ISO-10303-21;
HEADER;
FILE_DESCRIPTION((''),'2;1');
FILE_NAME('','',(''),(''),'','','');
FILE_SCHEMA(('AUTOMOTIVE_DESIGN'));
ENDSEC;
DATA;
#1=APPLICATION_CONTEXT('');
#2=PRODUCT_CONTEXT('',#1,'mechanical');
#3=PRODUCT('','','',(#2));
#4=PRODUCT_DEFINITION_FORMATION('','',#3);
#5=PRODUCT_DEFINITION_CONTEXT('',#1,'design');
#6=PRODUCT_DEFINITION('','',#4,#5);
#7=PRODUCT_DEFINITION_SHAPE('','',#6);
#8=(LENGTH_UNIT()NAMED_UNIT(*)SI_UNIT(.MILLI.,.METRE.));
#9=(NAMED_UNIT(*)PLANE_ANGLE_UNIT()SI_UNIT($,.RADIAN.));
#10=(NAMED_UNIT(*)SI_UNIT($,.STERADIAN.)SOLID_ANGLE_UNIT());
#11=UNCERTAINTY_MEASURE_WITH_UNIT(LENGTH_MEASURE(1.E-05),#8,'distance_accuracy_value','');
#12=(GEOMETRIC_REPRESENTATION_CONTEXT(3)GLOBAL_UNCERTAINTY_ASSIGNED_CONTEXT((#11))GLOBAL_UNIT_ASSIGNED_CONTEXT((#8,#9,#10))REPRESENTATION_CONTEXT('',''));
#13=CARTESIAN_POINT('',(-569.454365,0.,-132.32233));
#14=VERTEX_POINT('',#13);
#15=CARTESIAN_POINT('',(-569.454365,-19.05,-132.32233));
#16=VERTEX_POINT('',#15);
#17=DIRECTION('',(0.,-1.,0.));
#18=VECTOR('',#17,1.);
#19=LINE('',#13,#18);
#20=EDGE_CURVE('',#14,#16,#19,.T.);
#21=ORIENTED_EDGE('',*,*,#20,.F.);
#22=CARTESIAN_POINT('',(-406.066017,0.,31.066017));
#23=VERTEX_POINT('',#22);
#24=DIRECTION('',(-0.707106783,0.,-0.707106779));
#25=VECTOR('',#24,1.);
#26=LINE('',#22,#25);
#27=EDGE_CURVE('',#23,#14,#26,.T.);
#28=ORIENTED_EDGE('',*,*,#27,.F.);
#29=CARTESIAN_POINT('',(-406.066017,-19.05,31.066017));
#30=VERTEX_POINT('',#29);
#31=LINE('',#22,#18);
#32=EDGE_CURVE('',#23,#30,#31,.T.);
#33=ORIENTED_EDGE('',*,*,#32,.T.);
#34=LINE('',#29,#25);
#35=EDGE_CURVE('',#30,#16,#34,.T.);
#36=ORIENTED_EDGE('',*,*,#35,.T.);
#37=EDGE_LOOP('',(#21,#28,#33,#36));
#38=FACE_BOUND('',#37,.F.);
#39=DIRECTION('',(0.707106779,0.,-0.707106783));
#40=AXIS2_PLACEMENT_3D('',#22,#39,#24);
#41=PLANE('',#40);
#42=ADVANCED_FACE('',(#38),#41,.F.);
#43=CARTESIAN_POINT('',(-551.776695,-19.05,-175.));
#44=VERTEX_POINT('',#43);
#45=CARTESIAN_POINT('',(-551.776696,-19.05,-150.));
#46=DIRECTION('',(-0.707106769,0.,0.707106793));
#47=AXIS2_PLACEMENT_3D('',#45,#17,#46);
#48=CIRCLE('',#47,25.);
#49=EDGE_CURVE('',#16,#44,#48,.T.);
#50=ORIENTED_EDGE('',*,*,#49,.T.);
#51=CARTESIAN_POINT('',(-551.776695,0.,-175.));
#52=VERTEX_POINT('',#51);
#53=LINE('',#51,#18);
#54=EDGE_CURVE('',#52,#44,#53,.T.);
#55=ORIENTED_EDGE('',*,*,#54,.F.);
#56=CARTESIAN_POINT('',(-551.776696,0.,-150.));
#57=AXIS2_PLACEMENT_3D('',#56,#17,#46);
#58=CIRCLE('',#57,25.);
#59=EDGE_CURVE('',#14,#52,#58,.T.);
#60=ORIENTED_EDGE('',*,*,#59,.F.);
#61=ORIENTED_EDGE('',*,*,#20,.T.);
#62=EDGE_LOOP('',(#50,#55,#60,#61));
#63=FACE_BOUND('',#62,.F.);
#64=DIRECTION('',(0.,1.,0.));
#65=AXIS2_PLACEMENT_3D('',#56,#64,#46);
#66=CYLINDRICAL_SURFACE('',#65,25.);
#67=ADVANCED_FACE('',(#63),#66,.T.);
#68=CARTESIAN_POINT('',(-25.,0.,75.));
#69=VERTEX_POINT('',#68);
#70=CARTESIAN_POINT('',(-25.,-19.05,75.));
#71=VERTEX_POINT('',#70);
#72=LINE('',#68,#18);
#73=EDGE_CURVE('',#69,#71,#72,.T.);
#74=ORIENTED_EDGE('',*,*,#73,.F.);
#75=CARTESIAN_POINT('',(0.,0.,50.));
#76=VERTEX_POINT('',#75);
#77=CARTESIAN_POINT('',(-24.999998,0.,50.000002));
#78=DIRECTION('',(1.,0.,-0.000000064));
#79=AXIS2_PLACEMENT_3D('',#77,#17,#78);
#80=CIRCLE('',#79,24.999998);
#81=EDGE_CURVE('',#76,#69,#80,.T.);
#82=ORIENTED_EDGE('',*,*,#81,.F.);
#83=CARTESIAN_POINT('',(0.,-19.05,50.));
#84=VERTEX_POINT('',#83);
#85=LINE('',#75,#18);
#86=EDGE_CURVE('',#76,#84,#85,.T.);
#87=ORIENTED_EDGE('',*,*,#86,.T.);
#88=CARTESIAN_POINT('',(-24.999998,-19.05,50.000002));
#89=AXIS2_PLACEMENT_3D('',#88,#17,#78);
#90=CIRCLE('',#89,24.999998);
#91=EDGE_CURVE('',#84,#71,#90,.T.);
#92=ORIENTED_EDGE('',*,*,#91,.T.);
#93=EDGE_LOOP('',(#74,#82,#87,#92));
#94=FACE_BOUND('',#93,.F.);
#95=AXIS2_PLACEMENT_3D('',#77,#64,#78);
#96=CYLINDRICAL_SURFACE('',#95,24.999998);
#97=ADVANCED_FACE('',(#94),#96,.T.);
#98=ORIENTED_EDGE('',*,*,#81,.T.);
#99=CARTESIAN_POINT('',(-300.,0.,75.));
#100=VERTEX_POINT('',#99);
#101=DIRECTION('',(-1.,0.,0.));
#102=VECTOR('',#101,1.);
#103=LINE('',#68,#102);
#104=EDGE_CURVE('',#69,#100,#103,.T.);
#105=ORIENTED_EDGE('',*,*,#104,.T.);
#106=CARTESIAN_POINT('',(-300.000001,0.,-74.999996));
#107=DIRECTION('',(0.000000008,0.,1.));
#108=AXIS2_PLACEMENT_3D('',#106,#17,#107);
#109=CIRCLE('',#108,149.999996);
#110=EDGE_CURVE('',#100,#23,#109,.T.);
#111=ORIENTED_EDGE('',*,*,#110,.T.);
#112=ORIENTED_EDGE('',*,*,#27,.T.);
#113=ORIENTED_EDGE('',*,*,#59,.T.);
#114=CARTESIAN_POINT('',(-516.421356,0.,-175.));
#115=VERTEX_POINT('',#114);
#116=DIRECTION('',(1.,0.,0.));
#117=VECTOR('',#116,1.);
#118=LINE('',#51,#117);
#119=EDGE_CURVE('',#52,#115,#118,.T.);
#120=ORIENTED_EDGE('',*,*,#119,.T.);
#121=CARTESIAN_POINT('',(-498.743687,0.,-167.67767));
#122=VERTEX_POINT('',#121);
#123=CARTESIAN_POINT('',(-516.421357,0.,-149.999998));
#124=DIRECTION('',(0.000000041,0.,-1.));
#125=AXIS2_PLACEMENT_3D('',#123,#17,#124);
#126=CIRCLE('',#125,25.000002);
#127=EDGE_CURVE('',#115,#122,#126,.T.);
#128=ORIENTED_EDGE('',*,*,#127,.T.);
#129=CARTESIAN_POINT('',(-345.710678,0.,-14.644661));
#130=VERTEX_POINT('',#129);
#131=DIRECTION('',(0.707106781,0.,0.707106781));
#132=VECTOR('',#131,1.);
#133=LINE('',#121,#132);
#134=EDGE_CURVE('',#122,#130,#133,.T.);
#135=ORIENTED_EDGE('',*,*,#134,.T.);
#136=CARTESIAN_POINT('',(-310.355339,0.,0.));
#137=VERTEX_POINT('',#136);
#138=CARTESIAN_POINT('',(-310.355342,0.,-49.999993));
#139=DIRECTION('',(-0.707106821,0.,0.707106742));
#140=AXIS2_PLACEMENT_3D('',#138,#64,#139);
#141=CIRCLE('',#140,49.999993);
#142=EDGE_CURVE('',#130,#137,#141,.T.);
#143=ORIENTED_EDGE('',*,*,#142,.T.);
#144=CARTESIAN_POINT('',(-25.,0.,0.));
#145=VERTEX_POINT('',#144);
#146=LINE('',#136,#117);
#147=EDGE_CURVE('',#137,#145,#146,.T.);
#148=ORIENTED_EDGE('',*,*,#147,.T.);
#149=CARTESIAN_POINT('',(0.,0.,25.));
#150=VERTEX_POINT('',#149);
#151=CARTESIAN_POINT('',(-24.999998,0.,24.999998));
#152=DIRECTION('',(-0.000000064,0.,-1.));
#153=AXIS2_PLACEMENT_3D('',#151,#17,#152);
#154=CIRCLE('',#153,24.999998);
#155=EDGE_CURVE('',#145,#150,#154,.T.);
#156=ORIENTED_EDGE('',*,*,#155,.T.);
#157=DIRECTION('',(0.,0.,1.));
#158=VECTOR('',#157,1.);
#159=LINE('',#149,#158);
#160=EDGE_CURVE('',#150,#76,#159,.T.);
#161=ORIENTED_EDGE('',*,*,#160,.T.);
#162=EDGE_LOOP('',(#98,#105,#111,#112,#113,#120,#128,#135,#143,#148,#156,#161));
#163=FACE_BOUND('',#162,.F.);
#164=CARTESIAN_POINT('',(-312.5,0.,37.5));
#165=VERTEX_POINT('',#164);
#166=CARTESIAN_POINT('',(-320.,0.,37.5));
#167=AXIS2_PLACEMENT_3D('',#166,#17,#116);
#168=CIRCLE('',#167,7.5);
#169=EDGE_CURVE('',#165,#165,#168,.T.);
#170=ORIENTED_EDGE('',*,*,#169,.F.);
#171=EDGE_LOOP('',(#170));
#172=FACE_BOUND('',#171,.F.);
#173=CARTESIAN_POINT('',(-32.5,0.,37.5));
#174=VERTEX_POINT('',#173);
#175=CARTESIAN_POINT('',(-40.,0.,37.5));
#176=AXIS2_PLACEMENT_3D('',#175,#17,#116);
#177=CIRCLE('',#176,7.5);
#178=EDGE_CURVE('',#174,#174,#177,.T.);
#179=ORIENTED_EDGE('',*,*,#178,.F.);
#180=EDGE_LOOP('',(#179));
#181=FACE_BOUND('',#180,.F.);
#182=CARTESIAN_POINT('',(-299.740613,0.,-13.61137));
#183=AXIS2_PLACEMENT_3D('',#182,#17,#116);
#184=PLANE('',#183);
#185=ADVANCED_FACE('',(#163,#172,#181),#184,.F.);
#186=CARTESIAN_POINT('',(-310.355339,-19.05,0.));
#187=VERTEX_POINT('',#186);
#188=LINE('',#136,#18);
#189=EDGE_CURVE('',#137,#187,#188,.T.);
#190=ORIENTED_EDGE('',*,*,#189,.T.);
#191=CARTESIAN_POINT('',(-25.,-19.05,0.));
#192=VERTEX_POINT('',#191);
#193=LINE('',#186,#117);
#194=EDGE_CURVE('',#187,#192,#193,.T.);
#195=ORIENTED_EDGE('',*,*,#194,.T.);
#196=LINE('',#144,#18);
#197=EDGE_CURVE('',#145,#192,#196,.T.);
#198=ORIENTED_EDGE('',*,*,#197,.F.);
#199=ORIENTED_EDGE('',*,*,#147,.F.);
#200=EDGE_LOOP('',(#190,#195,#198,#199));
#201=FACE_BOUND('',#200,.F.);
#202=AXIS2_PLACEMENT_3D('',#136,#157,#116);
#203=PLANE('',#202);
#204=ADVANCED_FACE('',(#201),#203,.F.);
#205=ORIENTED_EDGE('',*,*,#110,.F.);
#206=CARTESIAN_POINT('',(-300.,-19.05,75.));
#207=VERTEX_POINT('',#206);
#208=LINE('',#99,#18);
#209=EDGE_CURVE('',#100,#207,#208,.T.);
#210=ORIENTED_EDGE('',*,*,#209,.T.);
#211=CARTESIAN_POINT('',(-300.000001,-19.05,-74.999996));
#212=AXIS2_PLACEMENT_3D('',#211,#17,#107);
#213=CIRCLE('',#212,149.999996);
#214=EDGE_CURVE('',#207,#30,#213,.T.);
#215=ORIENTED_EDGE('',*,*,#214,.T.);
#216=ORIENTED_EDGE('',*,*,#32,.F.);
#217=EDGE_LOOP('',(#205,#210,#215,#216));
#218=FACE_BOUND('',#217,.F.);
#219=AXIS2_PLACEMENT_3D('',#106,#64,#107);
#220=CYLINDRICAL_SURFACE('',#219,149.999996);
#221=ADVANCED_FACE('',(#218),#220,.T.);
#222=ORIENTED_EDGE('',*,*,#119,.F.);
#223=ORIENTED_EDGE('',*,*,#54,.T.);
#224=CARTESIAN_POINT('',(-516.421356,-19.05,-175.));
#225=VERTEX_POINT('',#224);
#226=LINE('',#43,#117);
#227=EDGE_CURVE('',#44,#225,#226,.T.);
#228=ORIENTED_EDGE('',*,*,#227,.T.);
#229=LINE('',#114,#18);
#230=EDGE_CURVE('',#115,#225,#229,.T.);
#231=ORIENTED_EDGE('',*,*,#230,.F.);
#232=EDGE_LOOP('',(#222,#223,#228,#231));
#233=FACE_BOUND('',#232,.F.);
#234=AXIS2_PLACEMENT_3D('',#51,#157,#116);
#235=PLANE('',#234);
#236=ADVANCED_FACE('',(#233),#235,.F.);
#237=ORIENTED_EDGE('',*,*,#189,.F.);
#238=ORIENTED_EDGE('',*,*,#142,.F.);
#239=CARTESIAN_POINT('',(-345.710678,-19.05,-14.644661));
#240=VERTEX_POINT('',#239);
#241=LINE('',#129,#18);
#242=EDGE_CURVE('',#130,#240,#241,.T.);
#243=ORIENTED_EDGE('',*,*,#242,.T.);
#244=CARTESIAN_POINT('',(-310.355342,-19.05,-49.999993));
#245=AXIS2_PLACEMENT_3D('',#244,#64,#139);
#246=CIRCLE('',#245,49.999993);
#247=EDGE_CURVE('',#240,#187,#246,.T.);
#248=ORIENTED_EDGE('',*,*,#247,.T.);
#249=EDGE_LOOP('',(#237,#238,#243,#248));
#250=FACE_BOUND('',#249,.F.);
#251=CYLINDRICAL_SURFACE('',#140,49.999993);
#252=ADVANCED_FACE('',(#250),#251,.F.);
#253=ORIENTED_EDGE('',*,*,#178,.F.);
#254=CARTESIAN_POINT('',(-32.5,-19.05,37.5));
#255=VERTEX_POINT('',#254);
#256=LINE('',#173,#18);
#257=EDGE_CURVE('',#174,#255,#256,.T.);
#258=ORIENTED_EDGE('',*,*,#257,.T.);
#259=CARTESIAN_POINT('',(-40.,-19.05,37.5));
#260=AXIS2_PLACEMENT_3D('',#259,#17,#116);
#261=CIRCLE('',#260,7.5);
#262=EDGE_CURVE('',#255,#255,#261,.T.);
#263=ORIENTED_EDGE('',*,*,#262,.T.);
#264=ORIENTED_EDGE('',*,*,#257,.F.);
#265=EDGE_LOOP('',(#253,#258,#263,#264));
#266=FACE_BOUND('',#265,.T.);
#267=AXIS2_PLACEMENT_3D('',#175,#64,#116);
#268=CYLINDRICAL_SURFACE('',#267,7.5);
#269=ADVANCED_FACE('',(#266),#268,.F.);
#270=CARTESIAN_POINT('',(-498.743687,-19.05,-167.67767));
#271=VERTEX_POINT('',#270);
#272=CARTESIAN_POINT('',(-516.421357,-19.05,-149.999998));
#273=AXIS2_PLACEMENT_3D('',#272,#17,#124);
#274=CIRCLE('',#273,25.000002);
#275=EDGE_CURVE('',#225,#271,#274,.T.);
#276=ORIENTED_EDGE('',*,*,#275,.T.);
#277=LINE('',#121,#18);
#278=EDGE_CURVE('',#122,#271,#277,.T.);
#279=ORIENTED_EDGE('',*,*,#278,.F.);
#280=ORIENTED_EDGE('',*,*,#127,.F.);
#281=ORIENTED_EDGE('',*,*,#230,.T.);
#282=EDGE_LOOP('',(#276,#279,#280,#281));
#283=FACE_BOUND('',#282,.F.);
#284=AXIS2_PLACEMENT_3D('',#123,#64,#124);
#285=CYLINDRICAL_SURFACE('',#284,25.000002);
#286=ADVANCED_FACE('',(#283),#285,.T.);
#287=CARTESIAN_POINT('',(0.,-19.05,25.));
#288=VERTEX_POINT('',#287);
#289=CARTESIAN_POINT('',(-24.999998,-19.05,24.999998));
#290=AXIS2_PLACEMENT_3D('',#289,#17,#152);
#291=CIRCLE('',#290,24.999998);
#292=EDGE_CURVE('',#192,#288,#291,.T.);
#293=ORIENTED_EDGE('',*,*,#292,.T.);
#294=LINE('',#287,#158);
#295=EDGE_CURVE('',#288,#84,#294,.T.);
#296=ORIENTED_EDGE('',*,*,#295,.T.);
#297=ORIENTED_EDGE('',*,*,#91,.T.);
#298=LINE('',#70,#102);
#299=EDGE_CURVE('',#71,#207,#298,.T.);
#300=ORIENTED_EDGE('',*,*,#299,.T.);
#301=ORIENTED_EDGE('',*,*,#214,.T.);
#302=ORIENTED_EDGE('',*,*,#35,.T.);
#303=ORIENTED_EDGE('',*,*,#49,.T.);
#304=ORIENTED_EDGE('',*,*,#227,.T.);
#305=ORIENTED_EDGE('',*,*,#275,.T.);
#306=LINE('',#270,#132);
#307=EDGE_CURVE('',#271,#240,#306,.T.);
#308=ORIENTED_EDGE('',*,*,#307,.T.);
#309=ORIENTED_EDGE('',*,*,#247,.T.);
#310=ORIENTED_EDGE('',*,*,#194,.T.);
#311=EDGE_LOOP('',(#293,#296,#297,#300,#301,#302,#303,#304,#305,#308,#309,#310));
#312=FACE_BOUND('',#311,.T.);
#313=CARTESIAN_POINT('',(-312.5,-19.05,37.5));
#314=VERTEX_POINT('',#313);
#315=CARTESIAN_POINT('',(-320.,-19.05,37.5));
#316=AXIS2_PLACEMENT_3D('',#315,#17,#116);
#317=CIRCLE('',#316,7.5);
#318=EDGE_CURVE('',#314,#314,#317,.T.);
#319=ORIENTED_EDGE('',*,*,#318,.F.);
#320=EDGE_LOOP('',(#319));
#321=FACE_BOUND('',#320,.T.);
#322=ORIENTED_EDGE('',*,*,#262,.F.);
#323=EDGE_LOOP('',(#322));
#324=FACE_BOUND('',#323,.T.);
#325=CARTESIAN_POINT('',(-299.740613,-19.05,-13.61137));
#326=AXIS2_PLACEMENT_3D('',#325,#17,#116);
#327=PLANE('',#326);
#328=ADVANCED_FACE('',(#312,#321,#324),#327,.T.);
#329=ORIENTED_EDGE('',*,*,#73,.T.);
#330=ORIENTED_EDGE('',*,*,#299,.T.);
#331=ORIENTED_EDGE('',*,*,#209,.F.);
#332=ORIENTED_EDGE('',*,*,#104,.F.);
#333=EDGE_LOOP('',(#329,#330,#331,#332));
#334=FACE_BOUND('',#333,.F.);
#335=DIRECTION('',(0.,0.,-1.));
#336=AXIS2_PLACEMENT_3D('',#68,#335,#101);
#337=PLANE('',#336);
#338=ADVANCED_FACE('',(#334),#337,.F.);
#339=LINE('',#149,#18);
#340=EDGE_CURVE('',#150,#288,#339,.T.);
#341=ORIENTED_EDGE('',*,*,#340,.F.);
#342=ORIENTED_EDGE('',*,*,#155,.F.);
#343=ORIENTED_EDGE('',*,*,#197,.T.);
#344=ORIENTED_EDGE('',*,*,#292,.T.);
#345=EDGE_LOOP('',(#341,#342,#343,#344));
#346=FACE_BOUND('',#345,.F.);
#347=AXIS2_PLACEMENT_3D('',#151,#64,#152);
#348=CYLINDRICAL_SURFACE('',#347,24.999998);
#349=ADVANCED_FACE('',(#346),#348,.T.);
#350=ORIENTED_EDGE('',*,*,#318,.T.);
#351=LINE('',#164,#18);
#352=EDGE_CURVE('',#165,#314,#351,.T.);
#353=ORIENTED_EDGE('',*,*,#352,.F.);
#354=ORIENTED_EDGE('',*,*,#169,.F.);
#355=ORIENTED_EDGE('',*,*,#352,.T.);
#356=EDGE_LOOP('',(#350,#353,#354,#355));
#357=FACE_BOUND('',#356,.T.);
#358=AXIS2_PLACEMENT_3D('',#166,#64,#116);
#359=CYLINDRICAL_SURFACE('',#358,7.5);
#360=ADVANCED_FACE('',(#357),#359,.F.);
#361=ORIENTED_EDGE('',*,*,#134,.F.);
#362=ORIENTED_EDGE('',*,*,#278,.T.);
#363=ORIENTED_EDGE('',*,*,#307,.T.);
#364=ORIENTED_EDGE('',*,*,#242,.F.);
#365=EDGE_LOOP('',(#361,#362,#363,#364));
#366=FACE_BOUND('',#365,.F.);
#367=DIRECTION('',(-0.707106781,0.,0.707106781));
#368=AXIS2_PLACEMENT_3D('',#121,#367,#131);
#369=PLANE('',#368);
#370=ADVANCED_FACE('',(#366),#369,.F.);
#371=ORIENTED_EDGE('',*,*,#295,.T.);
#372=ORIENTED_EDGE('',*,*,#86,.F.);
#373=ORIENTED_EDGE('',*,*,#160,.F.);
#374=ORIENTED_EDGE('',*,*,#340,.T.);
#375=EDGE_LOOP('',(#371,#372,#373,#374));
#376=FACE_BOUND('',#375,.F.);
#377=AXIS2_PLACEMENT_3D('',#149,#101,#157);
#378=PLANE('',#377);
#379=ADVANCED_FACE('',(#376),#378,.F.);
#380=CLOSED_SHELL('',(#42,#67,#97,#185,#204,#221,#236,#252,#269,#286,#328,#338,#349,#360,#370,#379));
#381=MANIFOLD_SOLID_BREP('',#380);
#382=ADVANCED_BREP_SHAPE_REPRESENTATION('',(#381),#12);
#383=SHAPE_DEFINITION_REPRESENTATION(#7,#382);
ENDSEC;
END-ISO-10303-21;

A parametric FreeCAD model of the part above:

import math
import FreeCAD as App
import Part
import Sketcher

V = App.Vector
Q = App.Units.Quantity

doc = App.newDocument("Part")
body = doc.addObject("PartDesign::Body", "Body")

# Sketch on XZ plane
sketch1 = body.newObject("Sketcher::SketchObject", "Sketch")
sketch1.AttachmentSupport = (doc.getObject("XZ_Plane"), [""])
sketch1.MapMode = "FlatFace"
sketch1.addGeometry([
    Part.ArcOfCircle(Part.Circle(V(-25, 25, 0), V(0, 0, 1), 25), math.radians(-90), math.radians(0)),  # 0
    Part.LineSegment(V(0, 25, 0), V(0, 50, 0)),  # 1
    Part.ArcOfCircle(Part.Circle(V(-25, 50, 0), V(0, 0, 1), 25), math.radians(0), math.radians(90)),  # 2
    Part.LineSegment(V(-25, 75, 0), V(-300, 75, 0)),  # 3
    Part.ArcOfCircle(Part.Circle(V(-300, -75, 0), V(0, 0, 1), 150), math.radians(90), math.radians(135)),  # 4
    Part.LineSegment(V(-406, 31, 0), V(-569, -132, 0)),  # 5
    Part.ArcOfCircle(Part.Circle(V(-552, -150, 0), V(0, 0, 1), 25), math.radians(135), math.radians(270)),  # 6
    Part.LineSegment(V(-552, -175, 0), V(-516, -175, 0)),  # 7
    Part.ArcOfCircle(Part.Circle(V(-516, -150, 0), V(0, 0, 1), 25), math.radians(-90), math.radians(-45)),  # 8
    Part.LineSegment(V(-499, -168, 0), V(-346, -15, 0)),  # 9
    Part.ArcOfCircle(Part.Circle(V(-310, -50, 0), V(0, 0, 1), 50), math.radians(90), math.radians(135)),  # 10
    Part.LineSegment(V(-310, 0, 0), V(-25, 0, 0)),  # 11
    Part.Circle(V(-320, 38, 0), V(0, 0, 1), 8),  # 12
    Part.Circle(V(-40, 38, 0), V(0, 0, 1), 8),  # 13
], False)
sketch1.addConstraint([
    Sketcher.Constraint("Tangent", 0, 2, 1, 1),
    Sketcher.Constraint("Tangent", 1, 2, 2, 1),
    Sketcher.Constraint("Tangent", 2, 2, 3, 1),
    Sketcher.Constraint("Tangent", 3, 2, 4, 1),
    Sketcher.Constraint("Tangent", 4, 2, 5, 1),
    Sketcher.Constraint("Tangent", 5, 2, 6, 1),
    Sketcher.Constraint("Tangent", 6, 2, 7, 1),
    Sketcher.Constraint("Tangent", 7, 2, 8, 1),
    Sketcher.Constraint("Tangent", 8, 2, 9, 1),
    Sketcher.Constraint("Tangent", 9, 2, 10, 2),
    Sketcher.Constraint("Tangent", 10, 1, 11, 1),
    Sketcher.Constraint("Tangent", 11, 2, 0, 1),
    Sketcher.Constraint("Vertical", 1),
    Sketcher.Constraint("Horizontal", 3),
    Sketcher.Constraint("Horizontal", 7),
    Sketcher.Constraint("Horizontal", 11),
    Sketcher.Constraint("Equal", 0, 2),
    Sketcher.Constraint("Equal", 2, 6),
    Sketcher.Constraint("Equal", 12, 13),
    Sketcher.Constraint("PointOnObject", 0, 2, -2),
    Sketcher.Constraint("PointOnObject", 10, 1, -1),
    Sketcher.Constraint("Parallel", 5, 9),
    Sketcher.Constraint("Horizontal", 12, 3, 13, 3),
    Sketcher.Constraint("Diameter", 12, Q("15 mm")),
    Sketcher.Constraint("Radius", 0, Q("24.999998 mm")),
    Sketcher.Constraint("DistanceX", 3, 2, 3, 1, Q("275 mm")),
    Sketcher.Constraint("DistanceY", 1, 1, 1, 2, Q("25 mm")),
    Sketcher.Constraint("Angle", 5, Q("-135 deg")),
    Sketcher.Constraint("DistanceY", 6, 3, -1, 1, Q("150 mm")),
    Sketcher.Constraint("DistanceX", 12, 3, -1, 1, Q("320 mm")),
    Sketcher.Constraint("DistanceX", 13, 3, -1, 1, Q("40 mm")),
    Sketcher.Constraint("DistanceY", 8, 3, 4, 3, Q("75.000001 mm")),
    Sketcher.Constraint("DistanceY", 8, 3, 2, 3, Q("199.999999 mm")),
    Sketcher.Constraint("DistanceY", -1, 1, 12, 3, Q("37.5 mm")),
    Sketcher.Constraint("Radius", 10, Q("49.999993 mm")),
    Sketcher.Constraint("DistanceX", 7, 1, 7, 2, Q("35.355339 mm")),
])
pad1 = body.newObject("PartDesign::Pad", "Pad")
pad1.Profile = sketch1
pad1.Length = 19.05

doc.recompute()
